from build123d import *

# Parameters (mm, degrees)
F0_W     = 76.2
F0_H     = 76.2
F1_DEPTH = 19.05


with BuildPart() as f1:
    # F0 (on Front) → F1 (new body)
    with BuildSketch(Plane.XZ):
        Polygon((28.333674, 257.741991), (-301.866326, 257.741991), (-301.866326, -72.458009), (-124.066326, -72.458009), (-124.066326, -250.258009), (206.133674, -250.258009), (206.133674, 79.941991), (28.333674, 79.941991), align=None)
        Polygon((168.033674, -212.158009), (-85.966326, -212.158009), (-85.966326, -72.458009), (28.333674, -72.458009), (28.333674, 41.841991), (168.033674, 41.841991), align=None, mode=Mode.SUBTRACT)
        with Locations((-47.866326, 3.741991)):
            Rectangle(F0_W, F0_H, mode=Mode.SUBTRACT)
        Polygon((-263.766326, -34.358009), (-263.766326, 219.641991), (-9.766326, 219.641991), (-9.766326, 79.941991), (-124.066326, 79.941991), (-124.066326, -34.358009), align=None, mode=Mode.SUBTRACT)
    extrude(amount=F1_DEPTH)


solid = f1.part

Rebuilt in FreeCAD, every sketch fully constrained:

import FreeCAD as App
import Part
import Sketcher
from FreeCAD import Vector
Q = App.Units.Quantity

doc = App.newDocument("Part")
body = doc.addObject("PartDesign::Body", "Body")

sketch1 = doc.addObject("Sketcher::SketchObject", "Sketch")
body.addObject(sketch1)
sketch1.AttachmentSupport = (doc.XZ_Plane, [""])
sketch1.MapMode = "FlatFace"
sketch1.addGeometry(Part.LineSegment(Vector(28, 258, 0), Vector(-302, 258, 0)), False)
sketch1.addGeometry(Part.LineSegment(Vector(-302, 258, 0), Vector(-302, -72, 0)), False)
sketch1.addGeometry(Part.LineSegment(Vector(-302, -72, 0), Vector(-124, -72, 0)), False)
sketch1.addGeometry(Part.LineSegment(Vector(-124, -72, 0), Vector(-124, -250, 0)), False)
sketch1.addGeometry(Part.LineSegment(Vector(-124, -250, 0), Vector(206, -250, 0)), False)
sketch1.addGeometry(Part.LineSegment(Vector(206, -250, 0), Vector(206, 80, 0)), False)
sketch1.addGeometry(Part.LineSegment(Vector(206, 80, 0), Vector(28, 80, 0)), False)
sketch1.addGeometry(Part.LineSegment(Vector(28, 80, 0), Vector(28, 258, 0)), False)
sketch1.addGeometry(Part.LineSegment(Vector(168, 42, 0), Vector(168, -212, 0)), False)
sketch1.addGeometry(Part.LineSegment(Vector(168, -212, 0), Vector(-86, -212, 0)), False)
sketch1.addGeometry(Part.LineSegment(Vector(-86, -212, 0), Vector(-86, -72, 0)), False)
sketch1.addGeometry(Part.LineSegment(Vector(-86, -72, 0), Vector(28, -72, 0)), False)
sketch1.addGeometry(Part.LineSegment(Vector(28, -72, 0), Vector(28, 42, 0)), False)
sketch1.addGeometry(Part.LineSegment(Vector(28, 42, 0), Vector(168, 42, 0)), False)
sketch1.addGeometry(Part.LineSegment(Vector(-124, -34, 0), Vector(-264, -34, 0)), False)
sketch1.addGeometry(Part.LineSegment(Vector(-264, -34, 0), Vector(-264, 220, 0)), False)
sketch1.addGeometry(Part.LineSegment(Vector(-264, 220, 0), Vector(-10, 220, 0)), False)
sketch1.addGeometry(Part.LineSegment(Vector(-10, 220, 0), Vector(-10, 80, 0)), False)
sketch1.addGeometry(Part.LineSegment(Vector(-10, 80, 0), Vector(-124, 80, 0)), False)
sketch1.addGeometry(Part.LineSegment(Vector(-124, 80, 0), Vector(-124, -34, 0)), False)
sketch1.addGeometry(Part.LineSegment(Vector(-10, -34, 0), Vector(-86, -34, 0)), False)
sketch1.addGeometry(Part.LineSegment(Vector(-86, -34, 0), Vector(-86, 42, 0)), False)
sketch1.addGeometry(Part.LineSegment(Vector(-86, 42, 0), Vector(-10, 42, 0)), False)
sketch1.addGeometry(Part.LineSegment(Vector(-10, 42, 0), Vector(-10, -34, 0)), False)
sketch1.addConstraint(Sketcher.Constraint("Coincident", 0, 2, 1, 1))
sketch1.addConstraint(Sketcher.Constraint("Coincident", 1, 2, 2, 1))
sketch1.addConstraint(Sketcher.Constraint("Coincident", 2, 2, 3, 1))
sketch1.addConstraint(Sketcher.Constraint("Coincident", 3, 2, 4, 1))
sketch1.addConstraint(Sketcher.Constraint("Coincident", 4, 2, 5, 1))
sketch1.addConstraint(Sketcher.Constraint("Coincident", 5, 2, 6, 1))
sketch1.addConstraint(Sketcher.Constraint("Coincident", 6, 2, 7, 1))
sketch1.addConstraint(Sketcher.Constraint("Coincident", 7, 2, 0, 1))
sketch1.addConstraint(Sketcher.Constraint("Coincident", 8, 2, 9, 1))
sketch1.addConstraint(Sketcher.Constraint("Coincident", 9, 2, 10, 1))
sketch1.addConstraint(Sketcher.Constraint("Coincident", 10, 2, 11, 1))
sketch1.addConstraint(Sketcher.Constraint("Coincident", 11, 2, 12, 1))
sketch1.addConstraint(Sketcher.Constraint("Coincident", 12, 2, 13, 1))
sketch1.addConstraint(Sketcher.Constraint("Coincident", 13, 2, 8, 1))
sketch1.addConstraint(Sketcher.Constraint("Coincident", 14, 2, 15, 1))
sketch1.addConstraint(Sketcher.Constraint("Coincident", 15, 2, 16, 1))
sketch1.addConstraint(Sketcher.Constraint("Coincident", 16, 2, 17, 1))
sketch1.addConstraint(Sketcher.Constraint("Coincident", 17, 2, 18, 1))
sketch1.addConstraint(Sketcher.Constraint("Coincident", 18, 2, 19, 1))
sketch1.addConstraint(Sketcher.Constraint("Coincident", 19, 2, 14, 1))
sketch1.addConstraint(Sketcher.Constraint("Coincident", 20, 2, 21, 1))
sketch1.addConstraint(Sketcher.Constraint("Coincident", 21, 2, 22, 1))
sketch1.addConstraint(Sketcher.Constraint("Coincident", 22, 2, 23, 1))
sketch1.addConstraint(Sketcher.Constraint("Coincident", 23, 2, 20, 1))
sketch1.addConstraint(Sketcher.Constraint("Horizontal", 0))
sketch1.addConstraint(Sketcher.Constraint("Vertical", 1))
sketch1.addConstraint(Sketcher.Constraint("Horizontal", 2))
sketch1.addConstraint(Sketcher.Constraint("Vertical", 3))
sketch1.addConstraint(Sketcher.Constraint("Horizontal", 4))
sketch1.addConstraint(Sketcher.Constraint("Vertical", 5))
sketch1.addConstraint(Sketcher.Constraint("Horizontal", 6))
sketch1.addConstraint(Sketcher.Constraint("Vertical", 7))
sketch1.addConstraint(Sketcher.Constraint("Vertical", 8))
sketch1.addConstraint(Sketcher.Constraint("Horizontal", 9))
sketch1.addConstraint(Sketcher.Constraint("Vertical", 10))
sketch1.addConstraint(Sketcher.Constraint("Horizontal", 11))
sketch1.addConstraint(Sketcher.Constraint("Vertical", 12))
sketch1.addConstraint(Sketcher.Constraint("Horizontal", 13))
sketch1.addConstraint(Sketcher.Constraint("Horizontal", 14))
sketch1.addConstraint(Sketcher.Constraint("Vertical", 15))
sketch1.addConstraint(Sketcher.Constraint("Horizontal", 16))
sketch1.addConstraint(Sketcher.Constraint("Vertical", 17))
sketch1.addConstraint(Sketcher.Constraint("Horizontal", 18))
sketch1.addConstraint(Sketcher.Constraint("Vertical", 19))
sketch1.addConstraint(Sketcher.Constraint("Horizontal", 20))
sketch1.addConstraint(Sketcher.Constraint("Vertical", 21))
sketch1.addConstraint(Sketcher.Constraint("Horizontal", 22))
sketch1.addConstraint(Sketcher.Constraint("Vertical", 23))
sketch1.addConstraint(Sketcher.Constraint("Horizontal", 2, 2, 10, 2))
sketch1.addConstraint(Sketcher.Constraint("Horizontal", 6, 2, 17, 2))
sketch1.addConstraint(Sketcher.Constraint("Horizontal", 19, 2, 20, 2))
sketch1.addConstraint(Sketcher.Constraint("Horizontal", 13, 2, 21, 2))
sketch1.addConstraint(Sketcher.Constraint("Vertical", 7, 2, 11, 2))
sketch1.addConstraint(Sketcher.Constraint("Vertical", 3, 2, 18, 2))
sketch1.addConstraint(Sketcher.Constraint("Vertical", 10, 2, 20, 2))
sketch1.addConstraint(Sketcher.Constraint("Vertical", 17, 2, 22, 2))
sketch1.addConstraint(Sketcher.Constraint("Equal", 0, 4))
sketch1.addConstraint(Sketcher.Constraint("Equal", 13, 14))
sketch1.addConstraint(Sketcher.Constraint("Equal", 9, 16))
sketch1.addConstraint(Sketcher.Constraint("Equal", 4, 1))
sketch1.addConstraint(Sketcher.Constraint("Equal", 6, 3))
sketch1.addConstraint(Sketcher.Constraint("Equal", 1, 5))
sketch1.addConstraint(Sketcher.Constraint("Equal", 16, 8))
sketch1.addConstraint(Sketcher.Constraint("Equal", 14, 10))
sketch1.addConstraint(Sketcher.Constraint("Equal", 8, 15))
sketch1.addConstraint(Sketcher.Constraint("Equal", 10, 17))
sketch1.addConstraint(Sketcher.Constraint("DistanceX", 0, 2, 0, 1, Q("13 in")))
sketch1.addConstraint(Sketcher.Constraint("DistanceX", 2, 1, 2, 2, Q("7 in")))
sketch1.addConstraint(Sketcher.Constraint("DistanceX", 9, 2, 9, 1, Q("10 in")))
sketch1.addConstraint(Sketcher.Constraint("DistanceX", 20, 2, 20, 1, Q("3 in")))
sketch1.addConstraint(Sketcher.Constraint("DistanceY", -1, 1, 0, 2, Q("257.741991 mm")))
sketch1.addConstraint(Sketcher.Constraint("DistanceX", 0, 2, -1, 1, Q("301.866326 mm")))
pad1 = doc.addObject("PartDesign::Pad", "Pad")
body.addObject(pad1)
pad1.Profile = sketch1
pad1.Length = Q("0.75 in")

doc.recompute()
